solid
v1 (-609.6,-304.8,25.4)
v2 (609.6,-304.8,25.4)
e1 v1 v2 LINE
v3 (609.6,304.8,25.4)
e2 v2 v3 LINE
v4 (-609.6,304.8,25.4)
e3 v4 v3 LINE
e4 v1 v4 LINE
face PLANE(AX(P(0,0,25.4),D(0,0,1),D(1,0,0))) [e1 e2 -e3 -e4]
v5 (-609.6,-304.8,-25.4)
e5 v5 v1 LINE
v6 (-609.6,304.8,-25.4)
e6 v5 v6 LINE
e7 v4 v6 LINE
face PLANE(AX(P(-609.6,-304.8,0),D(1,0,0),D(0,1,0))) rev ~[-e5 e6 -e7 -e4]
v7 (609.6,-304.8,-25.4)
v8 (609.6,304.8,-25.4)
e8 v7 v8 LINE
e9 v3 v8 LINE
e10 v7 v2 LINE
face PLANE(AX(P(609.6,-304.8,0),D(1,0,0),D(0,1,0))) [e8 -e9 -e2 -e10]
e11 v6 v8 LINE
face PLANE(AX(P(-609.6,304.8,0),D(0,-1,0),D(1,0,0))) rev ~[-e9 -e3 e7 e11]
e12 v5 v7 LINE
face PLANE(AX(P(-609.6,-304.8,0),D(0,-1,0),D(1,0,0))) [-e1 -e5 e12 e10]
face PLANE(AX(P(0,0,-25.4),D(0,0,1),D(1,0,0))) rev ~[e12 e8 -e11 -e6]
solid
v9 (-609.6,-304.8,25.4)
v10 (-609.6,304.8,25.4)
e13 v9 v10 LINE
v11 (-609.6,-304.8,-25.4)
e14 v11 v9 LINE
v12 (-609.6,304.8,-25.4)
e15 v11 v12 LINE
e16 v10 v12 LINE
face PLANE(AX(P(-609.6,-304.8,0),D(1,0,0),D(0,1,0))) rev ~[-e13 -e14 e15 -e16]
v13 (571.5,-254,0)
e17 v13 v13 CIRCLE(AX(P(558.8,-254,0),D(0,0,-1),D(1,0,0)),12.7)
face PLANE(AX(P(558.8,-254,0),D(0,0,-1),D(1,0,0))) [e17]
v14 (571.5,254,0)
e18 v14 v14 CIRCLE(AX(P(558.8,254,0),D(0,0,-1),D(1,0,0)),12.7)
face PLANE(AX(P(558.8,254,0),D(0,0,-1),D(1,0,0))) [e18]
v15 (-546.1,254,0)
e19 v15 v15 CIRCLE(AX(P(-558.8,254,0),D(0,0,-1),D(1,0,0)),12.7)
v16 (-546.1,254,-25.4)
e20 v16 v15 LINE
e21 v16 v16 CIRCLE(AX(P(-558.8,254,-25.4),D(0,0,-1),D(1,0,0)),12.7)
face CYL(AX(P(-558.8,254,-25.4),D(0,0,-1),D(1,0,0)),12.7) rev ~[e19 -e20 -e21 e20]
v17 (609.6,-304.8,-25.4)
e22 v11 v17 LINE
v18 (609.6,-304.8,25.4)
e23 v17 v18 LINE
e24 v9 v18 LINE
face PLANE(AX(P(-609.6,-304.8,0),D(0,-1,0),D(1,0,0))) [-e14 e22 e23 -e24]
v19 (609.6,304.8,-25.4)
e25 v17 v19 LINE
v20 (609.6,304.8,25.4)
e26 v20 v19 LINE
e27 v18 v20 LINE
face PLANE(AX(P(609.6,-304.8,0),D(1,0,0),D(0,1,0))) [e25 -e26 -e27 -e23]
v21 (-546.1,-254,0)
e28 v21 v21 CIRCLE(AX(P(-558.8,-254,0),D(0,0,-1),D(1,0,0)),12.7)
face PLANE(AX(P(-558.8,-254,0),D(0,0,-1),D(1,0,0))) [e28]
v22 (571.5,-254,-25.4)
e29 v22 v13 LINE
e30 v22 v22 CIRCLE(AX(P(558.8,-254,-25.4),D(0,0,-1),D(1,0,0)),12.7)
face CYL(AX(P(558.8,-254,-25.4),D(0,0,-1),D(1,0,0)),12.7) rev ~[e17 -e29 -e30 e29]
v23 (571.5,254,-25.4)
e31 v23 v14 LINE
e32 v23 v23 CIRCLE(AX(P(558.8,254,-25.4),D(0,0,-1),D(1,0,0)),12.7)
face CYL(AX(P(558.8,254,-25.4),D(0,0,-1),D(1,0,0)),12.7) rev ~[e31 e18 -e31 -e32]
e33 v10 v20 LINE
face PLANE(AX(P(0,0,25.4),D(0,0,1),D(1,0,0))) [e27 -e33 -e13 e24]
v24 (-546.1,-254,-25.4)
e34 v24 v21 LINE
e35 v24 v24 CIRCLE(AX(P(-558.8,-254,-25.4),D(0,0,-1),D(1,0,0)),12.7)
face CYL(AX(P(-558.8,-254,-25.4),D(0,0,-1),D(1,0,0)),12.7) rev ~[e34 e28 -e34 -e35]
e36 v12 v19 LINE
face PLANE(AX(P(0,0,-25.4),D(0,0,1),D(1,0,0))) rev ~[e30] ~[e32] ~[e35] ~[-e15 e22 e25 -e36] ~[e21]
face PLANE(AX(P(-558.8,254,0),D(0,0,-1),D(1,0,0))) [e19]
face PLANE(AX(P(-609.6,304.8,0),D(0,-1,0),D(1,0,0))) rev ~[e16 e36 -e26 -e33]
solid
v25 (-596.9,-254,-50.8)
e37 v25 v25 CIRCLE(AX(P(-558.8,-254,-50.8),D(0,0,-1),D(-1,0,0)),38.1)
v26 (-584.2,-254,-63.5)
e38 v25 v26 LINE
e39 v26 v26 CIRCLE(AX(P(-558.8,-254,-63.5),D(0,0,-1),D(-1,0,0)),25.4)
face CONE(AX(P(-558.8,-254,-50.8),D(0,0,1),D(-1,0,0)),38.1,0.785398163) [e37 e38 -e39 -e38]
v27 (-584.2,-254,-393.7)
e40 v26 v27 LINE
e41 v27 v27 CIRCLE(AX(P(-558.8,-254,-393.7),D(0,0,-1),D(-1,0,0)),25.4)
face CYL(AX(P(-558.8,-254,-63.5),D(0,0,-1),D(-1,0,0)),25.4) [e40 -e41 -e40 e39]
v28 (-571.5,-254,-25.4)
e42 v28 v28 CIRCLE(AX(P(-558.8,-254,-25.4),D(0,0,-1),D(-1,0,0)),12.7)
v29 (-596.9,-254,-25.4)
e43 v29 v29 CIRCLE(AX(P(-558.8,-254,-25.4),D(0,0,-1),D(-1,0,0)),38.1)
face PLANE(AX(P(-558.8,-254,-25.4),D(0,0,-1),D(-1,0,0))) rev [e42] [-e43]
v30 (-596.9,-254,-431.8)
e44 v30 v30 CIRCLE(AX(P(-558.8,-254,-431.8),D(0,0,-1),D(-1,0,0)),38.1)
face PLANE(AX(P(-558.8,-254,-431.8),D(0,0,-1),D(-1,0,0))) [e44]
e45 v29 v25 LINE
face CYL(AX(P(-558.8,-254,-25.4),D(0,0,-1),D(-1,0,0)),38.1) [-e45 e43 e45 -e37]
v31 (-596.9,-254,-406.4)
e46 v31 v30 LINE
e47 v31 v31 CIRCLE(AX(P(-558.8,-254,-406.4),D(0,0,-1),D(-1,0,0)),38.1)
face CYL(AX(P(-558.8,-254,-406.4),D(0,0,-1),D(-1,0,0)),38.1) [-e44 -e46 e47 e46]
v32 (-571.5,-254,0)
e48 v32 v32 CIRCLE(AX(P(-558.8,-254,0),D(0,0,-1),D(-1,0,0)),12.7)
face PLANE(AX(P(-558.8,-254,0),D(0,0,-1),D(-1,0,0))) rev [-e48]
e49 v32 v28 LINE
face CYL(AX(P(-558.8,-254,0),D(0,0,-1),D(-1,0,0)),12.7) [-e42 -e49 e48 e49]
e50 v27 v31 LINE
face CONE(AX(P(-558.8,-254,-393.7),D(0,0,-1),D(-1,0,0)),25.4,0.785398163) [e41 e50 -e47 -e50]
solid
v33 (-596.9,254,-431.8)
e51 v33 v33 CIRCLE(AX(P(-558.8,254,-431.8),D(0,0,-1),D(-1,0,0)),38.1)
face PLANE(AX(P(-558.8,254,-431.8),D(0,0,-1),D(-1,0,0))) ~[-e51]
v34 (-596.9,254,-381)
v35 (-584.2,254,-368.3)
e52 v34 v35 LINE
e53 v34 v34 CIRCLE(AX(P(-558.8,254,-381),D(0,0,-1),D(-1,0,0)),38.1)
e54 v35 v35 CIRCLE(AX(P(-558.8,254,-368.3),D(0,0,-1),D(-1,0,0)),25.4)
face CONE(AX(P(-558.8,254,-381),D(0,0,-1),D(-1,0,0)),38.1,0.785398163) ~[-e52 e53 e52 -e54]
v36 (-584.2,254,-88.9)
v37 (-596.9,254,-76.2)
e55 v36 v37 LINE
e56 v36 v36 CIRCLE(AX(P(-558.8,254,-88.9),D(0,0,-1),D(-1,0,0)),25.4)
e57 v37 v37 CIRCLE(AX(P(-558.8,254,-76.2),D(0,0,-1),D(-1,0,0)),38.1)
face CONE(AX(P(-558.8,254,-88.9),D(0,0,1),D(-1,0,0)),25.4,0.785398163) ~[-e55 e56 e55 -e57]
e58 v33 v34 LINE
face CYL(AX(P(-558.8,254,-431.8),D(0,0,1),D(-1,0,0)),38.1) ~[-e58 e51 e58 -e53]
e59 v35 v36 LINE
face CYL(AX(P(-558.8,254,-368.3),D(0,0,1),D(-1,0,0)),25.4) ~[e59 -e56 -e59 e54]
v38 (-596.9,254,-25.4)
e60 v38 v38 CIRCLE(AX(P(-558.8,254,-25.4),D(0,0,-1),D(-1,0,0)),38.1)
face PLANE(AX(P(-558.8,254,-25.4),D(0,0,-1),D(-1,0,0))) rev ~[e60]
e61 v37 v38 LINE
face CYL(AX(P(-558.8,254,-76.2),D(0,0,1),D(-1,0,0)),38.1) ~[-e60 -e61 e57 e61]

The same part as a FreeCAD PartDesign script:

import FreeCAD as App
import Part
import Sketcher

V = App.Vector
Q = App.Units.Quantity


def add_polygon(sketch, points):
    """Adds a closed chain of lines whose ends are joined by coincident constraints."""
    first, n = sketch.GeometryCount, len(points)
    for a, b in zip(points, points[1:] + points[:1]):
        sketch.addGeometry(Part.LineSegment(App.Vector(*a, 0), App.Vector(*b, 0)), False)
    for i in range(n):
        sketch.addConstraint(Sketcher.Constraint("Coincident", first + i, 2, first + (i + 1) % n, 1))

doc = App.newDocument("Part")
body = doc.addObject("PartDesign::Body", "Body")

sketch1 = body.newObject("Sketcher::SketchObject", "Sketch")
sketch1.AttachmentSupport = (doc.getObject("XY_Plane"), [""])
sketch1.MapMode = "FlatFace"
add_polygon(sketch1, [(-610, 305), (-610, -305), (610, -305), (610, 305)])
sketch1.addConstraint(Sketcher.Constraint("Vertical", 0))
sketch1.addConstraint(Sketcher.Constraint("Horizontal", 1))
sketch1.addConstraint(Sketcher.Constraint("Vertical", 2))
sketch1.addConstraint(Sketcher.Constraint("Horizontal", 3))
sketch1.addConstraint(Sketcher.Constraint("Symmetric", 0, 2, 2, 2, -1, 1))
sketch1.addConstraint(Sketcher.Constraint("DistanceX", 1, 1, 1, 2, Q("48 in")))
sketch1.addConstraint(Sketcher.Constraint("DistanceY", 0, 2, 0, 1, Q("24 in")))
pad1 = body.newObject("PartDesign::Pad", "Pad")
pad1.Profile = sketch1
pad1.Length = Q("2 in")
pad1.Midplane = True

sketch2 = body.newObject("Sketcher::SketchObject", "Sketch001")
sketch2.AttachmentSupport = (doc.getObject("XY_Plane"), [""])
sketch2.MapMode = "FlatFace"
sketch2.AttachmentOffset = App.Placement(V(0, 0, -1 * 25.4), App.Rotation())
sketch2.addGeometry(Part.Circle(V(-559, -254, 0), V(0, 0, 1), 13), False)
sketch2.addGeometry(Part.Circle(V(-559, 254, 0), V(0, 0, 1), 13), False)
sketch2.addGeometry(Part.Circle(V(559, 254, 0), V(0, 0, 1), 13), False)
sketch2.addGeometry(Part.Circle(V(559, -254, 0), V(0, 0, 1), 13), False)
sketch2.addConstraint(Sketcher.Constraint("Equal", 0, 1))
sketch2.addConstraint(Sketcher.Constraint("Equal", 1, 2))
sketch2.addConstraint(Sketcher.Constraint("Equal", 2, 3))
sketch2.addConstraint(Sketcher.Constraint("Symmetric", 0, 3, 2, 3, -1, 1))
sketch2.addConstraint(Sketcher.Constraint("Symmetric", 1, 3, 3, 3, -1, 1))
sketch2.addConstraint(Sketcher.Constraint("Symmetric", 1, 3, 2, 3, -2))
sketch2.addConstraint(Sketcher.Constraint("Diameter", 0, Q("1 in")))
sketch2.addConstraint(Sketcher.Constraint("DistanceX", 0, 3, -1, 1, Q("22 in")))
sketch2.addConstraint(Sketcher.Constraint("DistanceY", 0, 3, -1, 1, Q("10 in")))
pocket1 = body.newObject("PartDesign::Pocket", "Pocket")
pocket1.Profile = sketch2
pocket1.Length = Q("1 in")
pocket1.Reversed = True
body2 = doc.addObject("PartDesign::Body", "Body001")

sketch3 = body2.newObject("Sketcher::SketchObject", "Sketch002")
sketch3.AttachmentSupport = (doc.getObject("XY_Plane001"), [""])
sketch3.MapMode = "FlatFace"
add_polygon(sketch3, [(-610, 305), (-610, -305), (610, -305), (610, 305)])
sketch3.addConstraint(Sketcher.Constraint("Vertical", 0))
sketch3.addConstraint(Sketcher.Constraint("Horizontal", 1))
sketch3.addConstraint(Sketcher.Constraint("Vertical", 2))
sketch3.addConstraint(Sketcher.Constraint("Horizontal", 3))
sketch3.addConstraint(Sketcher.Constraint("Symmetric", 0, 2, 2, 2, -1, 1))
sketch3.addConstraint(Sketcher.Constraint("DistanceX", 1, 1, 1, 2, Q("48 in")))
sketch3.addConstraint(Sketcher.Constraint("DistanceY", 0, 2, 0, 1, Q("24 in")))
pad2 = body2.newObject("PartDesign::Pad", "Pad001")
pad2.Profile = sketch3
pad2.Length = Q("2 in")
pad2.Midplane = True
body3 = doc.addObject("PartDesign::Body", "Body002")

sketch4 = body3.newObject("Sketcher::SketchObject", "Sketch003")
sketch4.AttachmentSupport = (doc.getObject("XZ_Plane002"), [""])
sketch4.MapMode = "FlatFace"
sketch4.AttachmentOffset = App.Placement(V(0, 0, 10 * 25.4), App.Rotation())
add_polygon(sketch4, [(-572, 0), (-572, -25), (-597, -25), (-597, -51), (-584, -64), (-584, -394), (-597, -406), (-597, -432), (-559, -432), (-559, 0)])
sketch4.addGeometry(Part.LineSegment(V(-559, 0, 0), V(-559, -432, 0)), True)
sketch4.addConstraint(Sketcher.Constraint("Vertical", 0))
sketch4.addConstraint(Sketcher.Constraint("Horizontal", 1))
sketch4.addConstraint(Sketcher.Constraint("Vertical", 2))
sketch4.addConstraint(Sketcher.Constraint("Vertical", 4))
sketch4.addConstraint(Sketcher.Constraint("Vertical", 6))
sketch4.addConstraint(Sketcher.Constraint("Horizontal", 7))
sketch4.addConstraint(Sketcher.Constraint("Vertical", 8))
sketch4.addConstraint(Sketcher.Constraint("Horizontal", 9))
sketch4.addConstraint(Sketcher.Constraint("Vertical", 10))
sketch4.addConstraint(Sketcher.Constraint("Coincident", 10, 1, 8, 2))
sketch4.addConstraint(Sketcher.Constraint("PointOnObject", 8, 2, -1))
sketch4.addConstraint(Sketcher.Constraint("Perpendicular", 3, 5))
sketch4.addConstraint(Sketcher.Constraint("Horizontal", 6, 2, 10, 2))
sketch4.addConstraint(Sketcher.Constraint("Vertical", 2, 2, 5, 2))
sketch4.addConstraint(Sketcher.Constraint("Equal", 1, 0))
sketch4.addConstraint(Sketcher.Constraint("Equal", 0, 2))
sketch4.addConstraint(Sketcher.Constraint("Equal", 2, 6))
sketch4.addConstraint(Sketcher.Constraint("Equal", 3, 5))
sketch4.addConstraint(Sketcher.Constraint("DistanceX", 1, 2, 1, 1, Q("1 in")))
sketch4.addConstraint(Sketcher.Constraint("DistanceY", 4, 2, 4, 1, Q("13 in")))
sketch4.addConstraint(Sketcher.Constraint("DistanceY", 8, 1, 8, 2, Q("17 in")))
sketch4.addConstraint(Sketcher.Constraint("DistanceX", 7, 1, 7, 2, Q("1.5 in")))
sketch4.addConstraint(Sketcher.Constraint("DistanceX", 3, 2, -1, 1, Q("23 in")))
revolution = body3.newObject("PartDesign::Revolution", "Revolution")
revolution.Profile = sketch4
revolution.ReferenceAxis = (sketch4, ["Axis0"])
revolution.Angle = 360
body4 = doc.addObject("PartDesign::Body", "Body003")

sketch5 = body4.newObject("Sketcher::SketchObject", "Sketch004")
sketch5.AttachmentSupport = (doc.getObject("XZ_Plane003"), [""])
sketch5.MapMode = "FlatFace"
sketch5.AttachmentOffset = App.Placement(V(0, 0, -10 * 25.4), App.Rotation())
add_polygon(sketch5, [(-597, -25), (-559, -25), (-559, -432), (-597, -432), (-597, -381), (-584, -368), (-584, -89), (-597, -76)])
sketch5.addGeometry(Part.LineSegment(V(-559, -25, 0), V(-559, -432, 0)), True)
sketch5.addConstraint(Sketcher.Constraint("Horizontal", 0))
sketch5.addConstraint(Sketcher.Constraint("Vertical", 1))
sketch5.addConstraint(Sketcher.Constraint("Horizontal", 2))
sketch5.addConstraint(Sketcher.Constraint("Vertical", 3))
sketch5.addConstraint(Sketcher.Constraint("Vertical", 5))
sketch5.addConstraint(Sketcher.Constraint("Vertical", 7))
sketch5.addConstraint(Sketcher.Constraint("Vertical", 8))
sketch5.addConstraint(Sketcher.Constraint("Coincident", 8, 1, 0, 2))
sketch5.addConstraint(Sketcher.Constraint("Perpendicular", 4, 6))
sketch5.addConstraint(Sketcher.Constraint("Horizontal", 2, 2, 8, 2))
sketch5.addConstraint(Sketcher.Constraint("Vertical", 3, 2, 6, 2))
sketch5.addConstraint(Sketcher.Constraint("Equal", 3, 7))
sketch5.addConstraint(Sketcher.Constraint("Equal", 4, 6))
sketch5.addConstraint(Sketcher.Constraint("DistanceY", 1, 2, 1, 1, Q("16 in")))
sketch5.addConstraint(Sketcher.Constraint("DistanceY", 3, 1, 3, 2, Q("2 in")))
sketch5.addConstraint(Sketcher.Constraint("DistanceY", 5, 1, 5, 2, Q("11 in")))
sketch5.addConstraint(Sketcher.Constraint("DistanceX", 0, 1, 0, 2, Q("1.5 in")))
sketch5.addConstraint(Sketcher.Constraint("DistanceX", 0, 2, -1, 1, Q("22 in")))
sketch5.addConstraint(Sketcher.Constraint("DistanceY", 0, 2, -1, 1, Q("1 in")))
revolution2 = body4.newObject("PartDesign::Revolution", "Revolution001")
revolution2.Profile = sketch5
revolution2.ReferenceAxis = (sketch5, ["Axis0"])
revolution2.Angle = 360

doc.recompute()
